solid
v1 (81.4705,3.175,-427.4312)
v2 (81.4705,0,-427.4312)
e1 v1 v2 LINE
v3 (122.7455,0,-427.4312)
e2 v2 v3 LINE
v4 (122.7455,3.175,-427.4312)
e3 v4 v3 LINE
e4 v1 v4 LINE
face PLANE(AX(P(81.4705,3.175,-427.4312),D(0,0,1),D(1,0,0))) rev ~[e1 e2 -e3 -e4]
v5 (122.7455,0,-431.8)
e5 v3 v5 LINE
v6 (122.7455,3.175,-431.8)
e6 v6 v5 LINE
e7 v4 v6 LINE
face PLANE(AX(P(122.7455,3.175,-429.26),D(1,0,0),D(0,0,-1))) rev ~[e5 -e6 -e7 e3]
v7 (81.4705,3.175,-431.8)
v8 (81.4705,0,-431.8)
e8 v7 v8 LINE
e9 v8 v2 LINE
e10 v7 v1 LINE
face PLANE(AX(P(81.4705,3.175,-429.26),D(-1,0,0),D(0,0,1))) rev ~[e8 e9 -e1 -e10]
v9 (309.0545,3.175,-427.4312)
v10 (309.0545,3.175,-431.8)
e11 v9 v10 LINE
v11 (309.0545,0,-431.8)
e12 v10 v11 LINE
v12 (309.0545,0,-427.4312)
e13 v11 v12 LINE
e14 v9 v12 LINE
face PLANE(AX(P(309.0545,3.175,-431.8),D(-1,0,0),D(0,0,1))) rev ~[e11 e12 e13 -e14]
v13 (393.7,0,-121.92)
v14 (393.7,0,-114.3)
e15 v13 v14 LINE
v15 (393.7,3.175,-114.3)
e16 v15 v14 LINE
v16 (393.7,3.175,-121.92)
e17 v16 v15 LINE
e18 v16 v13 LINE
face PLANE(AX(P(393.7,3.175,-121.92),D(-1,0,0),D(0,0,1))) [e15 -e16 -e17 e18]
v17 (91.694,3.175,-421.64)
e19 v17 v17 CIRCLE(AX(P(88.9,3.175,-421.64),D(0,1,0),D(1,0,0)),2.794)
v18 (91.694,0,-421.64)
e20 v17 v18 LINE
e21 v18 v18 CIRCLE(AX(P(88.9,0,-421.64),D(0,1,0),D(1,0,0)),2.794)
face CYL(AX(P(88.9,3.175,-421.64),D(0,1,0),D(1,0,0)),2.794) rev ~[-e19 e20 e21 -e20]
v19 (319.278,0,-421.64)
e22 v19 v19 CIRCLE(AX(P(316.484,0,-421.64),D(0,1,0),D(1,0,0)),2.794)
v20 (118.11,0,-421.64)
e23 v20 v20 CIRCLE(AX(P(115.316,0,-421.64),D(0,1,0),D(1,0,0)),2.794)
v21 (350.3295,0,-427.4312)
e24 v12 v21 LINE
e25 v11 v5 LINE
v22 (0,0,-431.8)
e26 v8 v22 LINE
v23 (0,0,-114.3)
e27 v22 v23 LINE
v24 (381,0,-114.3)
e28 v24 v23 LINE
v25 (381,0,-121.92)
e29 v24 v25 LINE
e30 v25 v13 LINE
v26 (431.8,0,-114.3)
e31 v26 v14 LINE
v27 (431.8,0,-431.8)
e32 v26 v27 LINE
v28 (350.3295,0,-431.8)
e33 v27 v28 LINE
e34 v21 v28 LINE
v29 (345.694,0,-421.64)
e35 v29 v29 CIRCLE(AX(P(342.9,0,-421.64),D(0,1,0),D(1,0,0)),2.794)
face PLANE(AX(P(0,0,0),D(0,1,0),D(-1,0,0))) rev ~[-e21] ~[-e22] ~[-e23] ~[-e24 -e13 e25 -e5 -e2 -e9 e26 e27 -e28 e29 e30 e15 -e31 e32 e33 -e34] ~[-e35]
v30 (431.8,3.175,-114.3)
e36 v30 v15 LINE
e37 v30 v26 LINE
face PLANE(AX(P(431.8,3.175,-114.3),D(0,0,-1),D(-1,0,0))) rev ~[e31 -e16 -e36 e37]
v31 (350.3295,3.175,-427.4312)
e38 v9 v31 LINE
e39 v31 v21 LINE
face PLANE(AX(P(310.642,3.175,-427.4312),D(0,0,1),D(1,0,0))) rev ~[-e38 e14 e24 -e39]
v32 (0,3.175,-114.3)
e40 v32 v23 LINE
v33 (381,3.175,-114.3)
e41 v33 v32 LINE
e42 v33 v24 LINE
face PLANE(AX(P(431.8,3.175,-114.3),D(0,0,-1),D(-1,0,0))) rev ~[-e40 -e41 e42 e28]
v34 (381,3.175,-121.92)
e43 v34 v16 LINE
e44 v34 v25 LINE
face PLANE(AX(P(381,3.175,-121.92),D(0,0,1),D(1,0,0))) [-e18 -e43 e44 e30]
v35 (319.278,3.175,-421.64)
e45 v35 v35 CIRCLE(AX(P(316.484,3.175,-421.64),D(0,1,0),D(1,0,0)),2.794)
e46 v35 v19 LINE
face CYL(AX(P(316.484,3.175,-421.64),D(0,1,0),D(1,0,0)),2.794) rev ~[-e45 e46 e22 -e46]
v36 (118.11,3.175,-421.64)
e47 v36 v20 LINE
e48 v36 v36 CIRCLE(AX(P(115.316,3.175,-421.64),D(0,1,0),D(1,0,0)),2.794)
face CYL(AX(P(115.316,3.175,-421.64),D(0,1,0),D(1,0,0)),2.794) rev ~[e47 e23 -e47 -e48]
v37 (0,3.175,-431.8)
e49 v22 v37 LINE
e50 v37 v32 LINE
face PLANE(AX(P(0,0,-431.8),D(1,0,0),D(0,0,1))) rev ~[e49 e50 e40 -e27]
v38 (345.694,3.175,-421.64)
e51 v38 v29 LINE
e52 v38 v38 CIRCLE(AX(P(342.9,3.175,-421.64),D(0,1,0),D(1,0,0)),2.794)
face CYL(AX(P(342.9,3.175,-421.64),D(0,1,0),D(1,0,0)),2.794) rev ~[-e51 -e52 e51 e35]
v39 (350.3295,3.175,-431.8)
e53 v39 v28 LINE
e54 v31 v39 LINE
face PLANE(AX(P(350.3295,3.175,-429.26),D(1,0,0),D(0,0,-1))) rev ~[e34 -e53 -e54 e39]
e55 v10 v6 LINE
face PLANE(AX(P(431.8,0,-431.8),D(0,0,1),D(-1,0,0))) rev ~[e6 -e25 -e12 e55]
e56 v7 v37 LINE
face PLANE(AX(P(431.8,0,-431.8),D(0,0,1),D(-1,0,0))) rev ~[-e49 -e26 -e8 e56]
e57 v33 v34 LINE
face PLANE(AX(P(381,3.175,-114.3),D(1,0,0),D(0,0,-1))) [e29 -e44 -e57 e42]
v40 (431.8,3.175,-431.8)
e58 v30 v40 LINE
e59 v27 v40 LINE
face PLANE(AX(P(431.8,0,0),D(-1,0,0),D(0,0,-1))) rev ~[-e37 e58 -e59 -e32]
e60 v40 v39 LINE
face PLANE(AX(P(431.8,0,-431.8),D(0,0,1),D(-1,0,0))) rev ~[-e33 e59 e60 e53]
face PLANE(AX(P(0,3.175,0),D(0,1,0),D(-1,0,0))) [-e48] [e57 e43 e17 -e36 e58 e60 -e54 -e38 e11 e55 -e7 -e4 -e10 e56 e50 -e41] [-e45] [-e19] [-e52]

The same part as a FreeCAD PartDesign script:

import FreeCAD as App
import Part
import Sketcher
from FreeCAD import Vector
Q = App.Units.Quantity


def add_polygon(sketch, points):
    """Adds a closed chain of lines whose ends are joined by coincident constraints."""
    first, n = sketch.GeometryCount, len(points)
    for a, b in zip(points, points[1:] + points[:1]):
        sketch.addGeometry(Part.LineSegment(App.Vector(*a, 0), App.Vector(*b, 0)), False)
    for i in range(n):
        sketch.addConstraint(Sketcher.Constraint("Coincident", first + i, 2, first + (i + 1) % n, 1))

doc = App.newDocument("Part")
body = doc.addObject("PartDesign::Body", "Body")

# Sketch on XZ plane
sketch1 = doc.addObject("Sketcher::SketchObject", "Sketch")
body.addObject(sketch1)
sketch1.AttachmentSupport = (doc.XZ_Plane, [""])
sketch1.MapMode = "FlatFace"
add_polygon(sketch1, [(0, -432), (0, 0), (432, 0), (432, -432)])  # lines 0-3
sketch1.addConstraint(Sketcher.Constraint("Vertical", 0))
sketch1.addConstraint(Sketcher.Constraint("Horizontal", 1))
sketch1.addConstraint(Sketcher.Constraint("Vertical", 2))
sketch1.addConstraint(Sketcher.Constraint("Horizontal", 3))
sketch1.addConstraint(Sketcher.Constraint("Coincident", 0, 2, -1, 1))
sketch1.addConstraint(Sketcher.Constraint("Equal", 3, 0))
sketch1.addConstraint(Sketcher.Constraint("DistanceX", 1, 1, 1, 2, Q("17 in")))
pad1 = doc.addObject("PartDesign::Pad", "Pad")
body.addObject(pad1)
pad1.Profile = sketch1
pad1.Length = Q("0.125 in")
pad1.Reversed = True

# Sketch on XZ plane
sketch2 = doc.addObject("Sketcher::SketchObject", "Sketch001")
body.addObject(sketch2)
sketch2.AttachmentSupport = (doc.XZ_Plane, [""])
sketch2.MapMode = "FlatFace"
sketch2.AttachmentOffset = App.Placement(Vector(0, 0, -0.125 * 25.4), App.Rotation())
sketch2.addGeometry(Part.Circle(Vector(386.1, -64.8, 0), Vector(0, 0, 1), 6.3), False)  # 0
sketch2.addGeometry(Part.Circle(Vector(332.7, -64.8, 0), Vector(0, 0, 1), 6.3), False)  # 1
sketch2.addGeometry(Part.Circle(Vector(279.4, -64.8, 0), Vector(0, 0, 1), 6.3), False)  # 2
sketch2.addGeometry(Part.Circle(Vector(226.1, -64.8, 0), Vector(0, 0, 1), 6.3), False)  # 3
sketch2.addGeometry(Part.Circle(Vector(172.7, -64.8, 0), Vector(0, 0, 1), 6.3), False)  # 4
sketch2.addGeometry(Part.Circle(Vector(28.4, -92.3, 0), Vector(0, 0, 1), 1.5), False)  # 5
sketch2.addGeometry(Part.Circle(Vector(121.4, -92.3, 0), Vector(0, 0, 1), 1.5), False)  # 6
sketch2.addGeometry(Part.Circle(Vector(28.4, -37.3, 0), Vector(0, 0, 1), 1.5), False)  # 7
sketch2.addGeometry(Part.Circle(Vector(121.4, -37.3, 0), Vector(0, 0, 1), 1.5), False)  # 8
add_polygon(sketch2, [(123.4, -84.8), (26.4, -84.8), (26.4, -44.8), (123.4, -44.8)])  # lines 9-12
sketch2.addConstraint(Sketcher.Constraint("Horizontal", 9))
sketch2.addConstraint(Sketcher.Constraint("Vertical", 10))
sketch2.addConstraint(Sketcher.Constraint("Horizontal", 11))
sketch2.addConstraint(Sketcher.Constraint("Vertical", 12))
sketch2.addConstraint(Sketcher.Constraint("Equal", 0, 1))
sketch2.addConstraint(Sketcher.Constraint("Equal", 1, 2))
sketch2.addConstraint(Sketcher.Constraint("Equal", 2, 3))
sketch2.addConstraint(Sketcher.Constraint("Equal", 3, 4))
sketch2.addConstraint(Sketcher.Constraint("Equal", 5, 6))
sketch2.addConstraint(Sketcher.Constraint("Equal", 6, 7))
sketch2.addConstraint(Sketcher.Constraint("Equal", 7, 8))
sketch2.addConstraint(Sketcher.Constraint("Horizontal", 0, 3, 1, 3))
sketch2.addConstraint(Sketcher.Constraint("Horizontal", 1, 3, 2, 3))
sketch2.addConstraint(Sketcher.Constraint("Horizontal", 2, 3, 3, 3))
sketch2.addConstraint(Sketcher.Constraint("Horizontal", 3, 3, 4, 3))
sketch2.addConstraint(Sketcher.Constraint("Horizontal", 5, 3, 6, 3))
sketch2.addConstraint(Sketcher.Constraint("Horizontal", 7, 3, 8, 3))
sketch2.addConstraint(Sketcher.Constraint("Vertical", 5, 3, 7, 3))
sketch2.addConstraint(Sketcher.Constraint("Vertical", 6, 3, 8, 3))
sketch2.addConstraint(Sketcher.Constraint("Diameter", 0, Q("0.5 in")))
sketch2.addConstraint(Sketcher.Constraint("DistanceX", -1, 1, 2, 3, Q("11 in")))
sketch2.addConstraint(Sketcher.Constraint("Diameter", 5, Q("0.1181 in")))
sketch2.addConstraint(Sketcher.Constraint("DistanceX", -1, 1, 0, 3, Q("15.2 in")))
sketch2.addConstraint(Sketcher.Constraint("DistanceX", -1, 1, 1, 3, Q("13.1 in")))
sketch2.addConstraint(Sketcher.Constraint("DistanceX", -1, 1, 3, 3, Q("8.9 in")))
sketch2.addConstraint(Sketcher.Constraint("DistanceX", -1, 1, 4, 3, Q("6.8 in")))
sketch2.addConstraint(Sketcher.Constraint("DistanceY", 0, 3, -1, 1, Q("2.55 in")))
sketch2.addConstraint(Sketcher.Constraint("DistanceX", 9, 2, 9, 1, Q("3.8189 in")))
sketch2.addConstraint(Sketcher.Constraint("DistanceY", 10, 1, 10, 2, Q("1.5748 in")))
sketch2.addConstraint(Sketcher.Constraint("DistanceX", -1, 1, 5, 3, Q("1.1193 in")))
sketch2.addConstraint(Sketcher.Constraint("DistanceX", -1, 1, 6, 3, Q("4.7807 in")))
sketch2.addConstraint(Sketcher.Constraint("DistanceY", 9, 2, -1, 1, Q("3.3374 in")))
sketch2.addConstraint(Sketcher.Constraint("DistanceY", 5, 3, -1, 1, 92.2674))
sketch2.addConstraint(Sketcher.Constraint("DistanceY", 7, 3, -1, 1, 37.2726))
sketch2.addConstraint(Sketcher.Constraint("DistanceX", -1, 1, 9, 2, 26.43))
pocket1 = doc.addObject("PartDesign::Pocket", "Pocket")
body.addObject(pocket1)
pocket1.Profile = sketch2
pocket1.Length = Q("1 in")
pocket1.Reversed = True

# Sketch on XZ plane
sketch3 = doc.addObject("Sketcher::SketchObject", "Sketch002")
body.addObject(sketch3)
sketch3.AttachmentSupport = (doc.XZ_Plane, [""])
sketch3.MapMode = "FlatFace"
sketch3.AttachmentOffset = App.Placement(Vector(0, 0, -0.125 * 25.4), App.Rotation())
sketch3.addGeometry(Part.Circle(Vector(88.9, -421.6, 0), Vector(0, 0, 1), 2.8), False)
sketch3.addGeometry(Part.Circle(Vector(115.3, -421.6, 0), Vector(0, 0, 1), 2.8), False)
sketch3.addGeometry(Part.Circle(Vector(316.5, -421.6, 0), Vector(0, 0, 1), 2.8), False)
sketch3.addGeometry(Part.Circle(Vector(342.9, -421.6, 0), Vector(0, 0, 1), 2.8), False)
sketch3.addConstraint(Sketcher.Constraint("Equal", 0, 1))
sketch3.addConstraint(Sketcher.Constraint("Equal", 1, 2))
sketch3.addConstraint(Sketcher.Constraint("Equal", 2, 3))
sketch3.addConstraint(Sketcher.Constraint("Horizontal", 0, 3, 1, 3))
sketch3.addConstraint(Sketcher.Constraint("Horizontal", 1, 3, 2, 3))
sketch3.addConstraint(Sketcher.Constraint("Horizontal", 2, 3, 3, 3))
sketch3.addConstraint(Sketcher.Constraint("Diameter", 0, Q("0.22 in")))
sketch3.addConstraint(Sketcher.Constraint("DistanceX", 0, 3, 3, 3, Q("10 in")))
sketch3.addConstraint(Sketcher.Constraint("DistanceX", -1, 1, 0, 3, Q("3.5 in")))
sketch3.addConstraint(Sketcher.Constraint("DistanceY", 0, 3, -1, 1, Q("16.6 in")))
sketch3.addConstraint(Sketcher.Constraint("DistanceX", -1, 1, 1, 3, Q("4.54 in")))
sketch3.addConstraint(Sketcher.Constraint("DistanceX", -1, 1, 2, 3, Q("12.46 in")))
pocket2 = doc.addObject("PartDesign::Pocket", "Pocket001")
body.addObject(pocket2)
pocket2.Profile = sketch3
pocket2.Type = "ThroughAll"
pocket2.Midplane = True

# Sketch on XZ plane
sketch4 = doc.addObject("Sketcher::SketchObject", "Sketch003")
body.addObject(sketch4)
sketch4.AttachmentSupport = (doc.XZ_Plane, [""])
sketch4.MapMode = "FlatFace"
sketch4.addGeometry(Part.Circle(Vector(386, -65, 0), Vector(0, 0, 1), 8), False)
sketch4.addGeometry(Part.Circle(Vector(173, -65, 0), Vector(0, 0, 1), 8), False)
sketch4.addGeometry(Part.Circle(Vector(226, -65, 0), Vector(0, 0, 1), 8), False)
sketch4.addGeometry(Part.Circle(Vector(279, -65, 0), Vector(0, 0, 1), 8), False)
sketch4.addGeometry(Part.Circle(Vector(333, -65, 0), Vector(0, 0, 1), 8), False)
sketch4.addConstraint(Sketcher.Constraint("Equal", 0, 1))
sketch4.addConstraint(Sketcher.Constraint("Equal", 1, 2))
sketch4.addConstraint(Sketcher.Constraint("Equal", 2, 3))
sketch4.addConstraint(Sketcher.Constraint("Equal", 3, 4))
sketch4.addConstraint(Sketcher.Constraint("Horizontal", 0, 3, 1, 3))
sketch4.addConstraint(Sketcher.Constraint("Horizontal", 1, 3, 2, 3))
sketch4.addConstraint(Sketcher.Constraint("Horizontal", 2, 3, 3, 3))
sketch4.addConstraint(Sketcher.Constraint("Horizontal", 3, 3, 4, 3))
sketch4.addConstraint(Sketcher.Constraint("Diameter", 0, Q("0.6 in")))
sketch4.addConstraint(Sketcher.Constraint("DistanceX", -1, 1, 3, 3, Q("11 in")))
sketch4.addConstraint(Sketcher.Constraint("DistanceX", -1, 1, 0, 3, Q("15.2 in")))
sketch4.addConstraint(Sketcher.Constraint("DistanceX", -1, 1, 1, 3, Q("6.8 in")))
sketch4.addConstraint(Sketcher.Constraint("DistanceX", -1, 1, 2, 3, Q("8.9 in")))
sketch4.addConstraint(Sketcher.Constraint("DistanceX", -1, 1, 4, 3, Q("13.1 in")))
sketch4.addConstraint(Sketcher.Constraint("DistanceY", 0, 3, -1, 1, Q("2.55 in")))
pocket3 = doc.addObject("PartDesign::Pocket", "Pocket002")
body.addObject(pocket3)
pocket3.Profile = sketch4
pocket3.Length = Q("0.1712992 in")

# Sketch on XZ plane
sketch5 = doc.addObject("Sketcher::SketchObject", "Sketch004")
body.addObject(sketch5)
sketch5.AttachmentSupport = (doc.XZ_Plane, [""])
sketch5.MapMode = "FlatFace"
sketch5.AttachmentOffset = App.Placement(Vector(0, 0, -0.125 * 25.4), App.Rotation())
add_polygon(sketch5, [(432, -114), (0, -114), (0, 0), (432, 0)])  # lines 0-3
sketch5.addConstraint(Sketcher.Constraint("Horizontal", 0))
sketch5.addConstraint(Sketcher.Constraint("Vertical", 1))
sketch5.addConstraint(Sketcher.Constraint("Horizontal", 2))
sketch5.addConstraint(Sketcher.Constraint("Vertical", 3))
sketch5.addConstraint(Sketcher.Constraint("Coincident", 1, 2, -1, 1))
sketch5.addConstraint(Sketcher.Constraint("DistanceX", 0, 2, 0, 1, Q("17 in")))
sketch5.addConstraint(Sketcher.Constraint("DistanceY", 1, 1, 1, 2, Q("4.5 in")))
pocket4 = doc.addObject("PartDesign::Pocket", "Pocket003")
body.addObject(pocket4)
pocket4.Profile = sketch5
pocket4.Length = Q("1 in")
pocket4.Reversed = True

# Sketch on XZ plane
sketch6 = doc.addObject("Sketcher::SketchObject", "Sketch005")
body.addObject(sketch6)
sketch6.AttachmentSupport = (doc.XZ_Plane, [""])
sketch6.MapMode = "FlatFace"
sketch6.AttachmentOffset = App.Placement(Vector(0, 0, -0.125 * 25.4), App.Rotation())
add_polygon(sketch6, [(381, -114), (394, -114), (394, -122), (381, -122)])  # lines 0-3
sketch6.addConstraint(Sketcher.Constraint("Horizontal", 0))
sketch6.addConstraint(Sketcher.Constraint("Vertical", 1))
sketch6.addConstraint(Sketcher.Constraint("Horizontal", 2))
sketch6.addConstraint(Sketcher.Constraint("Vertical", 3))
sketch6.addConstraint(Sketcher.Constraint("DistanceX", 0, 1, 0, 2, Q("0.5 in")))
sketch6.addConstraint(Sketcher.Constraint("DistanceY", 1, 2, 1, 1, Q("0.3 in")))
sketch6.addConstraint(Sketcher.Constraint("DistanceX", -1, 1, 2, 2, Q("15 in")))
sketch6.addConstraint(Sketcher.Constraint("DistanceY", 0, 2, -1, 1, Q("4.5 in")))
pocket5 = doc.addObject("PartDesign::Pocket", "Pocket004")
body.addObject(pocket5)
pocket5.Profile = sketch6
pocket5.Length = Q("1 in")
pocket5.Reversed = True

# Sketch on XZ plane
sketch7 = doc.addObject("Sketcher::SketchObject", "Sketch006")
body.addObject(sketch7)
sketch7.AttachmentSupport = (doc.XZ_Plane, [""])
sketch7.MapMode = "FlatFace"
sketch7.AttachmentOffset = App.Placement(Vector(0, 0, -0.125 * 25.4), App.Rotation())
add_polygon(sketch7, [(348.7, -431.8), (310.6, -431.8), (310.6, -429.3), (348.7, -429.3)])  # lines 0-3
add_polygon(sketch7, [(83.1, -429.3), (121.2, -429.3), (121.2, -431.8), (83.1, -431.8)])  # lines 4-7
sketch7.addConstraint(Sketcher.Constraint("Horizontal", 0))
sketch7.addConstraint(Sketcher.Constraint("Vertical", 1))
sketch7.addConstraint(Sketcher.Constraint("Horizontal", 2))
sketch7.addConstraint(Sketcher.Constraint("Vertical", 3))
sketch7.addConstraint(Sketcher.Constraint("Horizontal", 4))
sketch7.addConstraint(Sketcher.Constraint("Vertical", 5))
sketch7.addConstraint(Sketcher.Constraint("Horizontal", 6))
sketch7.addConstraint(Sketcher.Constraint("Vertical", 7))
sketch7.addConstraint(Sketcher.Constraint("Horizontal", 2, 2, 4, 2))
sketch7.addConstraint(Sketcher.Constraint("Horizontal", 3, 2, 5, 2))
sketch7.addConstraint(Sketcher.Constraint("Equal", 2, 4))
sketch7.addConstraint(Sketcher.Constraint("DistanceX", 0, 2, 0, 1, Q("1.5 in")))
sketch7.addConstraint(Sketcher.Constraint("DistanceY", 1, 1, 1, 2, Q("0.1 in")))
sketch7.addConstraint(Sketcher.Constraint("DistanceY", 0, 2, -1, 1, Q("17 in")))
sketch7.addConstraint(Sketcher.Constraint("DistanceX", -1, 1, 0, 2, Q("12.23 in")))
sketch7.addConstraint(Sketcher.Constraint("DistanceX", -1, 1, 4, 2, Q("4.77 in")))
pocket6 = doc.addObject("PartDesign::Pocket", "Pocket005")
body.addObject(pocket6)
pocket6.Profile = sketch7
pocket6.Length = Q("1 in")
pocket6.Reversed = True

# Sketch on XZ plane
sketch8 = doc.addObject("Sketcher::SketchObject", "Sketch007")
body.addObject(sketch8)
sketch8.AttachmentSupport = (doc.XZ_Plane, [""])
sketch8.MapMode = "FlatFace"
sketch8.AttachmentOffset = App.Placement(Vector(0, 0, -0.125 * 25.4), App.Rotation())
add_polygon(sketch8, [(309.1, -431.8), (309.1, -427.4), (350.3, -427.4), (350.3, -431.8)])  # lines 0-3
add_polygon(sketch8, [(81.5, -431.8), (81.5, -427.4), (122.7, -427.4), (122.7, -431.8)])  # lines 4-7
sketch8.addConstraint(Sketcher.Constraint("Vertical", 0))
sketch8.addConstraint(Sketcher.Constraint("Horizontal", 1))
sketch8.addConstraint(Sketcher.Constraint("Vertical", 2))
sketch8.addConstraint(Sketcher.Constraint("Horizontal", 3))
sketch8.addConstraint(Sketcher.Constraint("Vertical", 4))
sketch8.addConstraint(Sketcher.Constraint("Horizontal", 5))
sketch8.addConstraint(Sketcher.Constraint("Vertical", 6))
sketch8.addConstraint(Sketcher.Constraint("Horizontal", 7))
sketch8.addConstraint(Sketcher.Constraint("Horizontal", 1, 2, 4, 2))
sketch8.addConstraint(Sketcher.Constraint("Horizontal", 3, 2, 6, 2))
sketch8.addConstraint(Sketcher.Constraint("Equal", 3, 5))
sketch8.addConstraint(Sketcher.Constraint("DistanceY", 0, 1, 0, 2, Q("0.172 in")))
sketch8.addConstraint(Sketcher.Constraint("DistanceY", 2, 2, -1, 1, Q("17 in")))
sketch8.addConstraint(Sketcher.Constraint("DistanceX", 1, 1, 1, 2, Q("1.625 in")))
sketch8.addConstraint(Sketcher.Constraint("DistanceX", 4, 2, 0, 2, Q("8.96 in")))
sketch8.addConstraint(Sketcher.Constraint("DistanceX", -1, 1, 0, 2, Q("12.1675 in")))
pocket7 = doc.addObject("PartDesign::Pocket", "Pocket006")
body.addObject(pocket7)
pocket7.Profile = sketch8
pocket7.Length = Q("1 in")
pocket7.Reversed = True

doc.recompute()
